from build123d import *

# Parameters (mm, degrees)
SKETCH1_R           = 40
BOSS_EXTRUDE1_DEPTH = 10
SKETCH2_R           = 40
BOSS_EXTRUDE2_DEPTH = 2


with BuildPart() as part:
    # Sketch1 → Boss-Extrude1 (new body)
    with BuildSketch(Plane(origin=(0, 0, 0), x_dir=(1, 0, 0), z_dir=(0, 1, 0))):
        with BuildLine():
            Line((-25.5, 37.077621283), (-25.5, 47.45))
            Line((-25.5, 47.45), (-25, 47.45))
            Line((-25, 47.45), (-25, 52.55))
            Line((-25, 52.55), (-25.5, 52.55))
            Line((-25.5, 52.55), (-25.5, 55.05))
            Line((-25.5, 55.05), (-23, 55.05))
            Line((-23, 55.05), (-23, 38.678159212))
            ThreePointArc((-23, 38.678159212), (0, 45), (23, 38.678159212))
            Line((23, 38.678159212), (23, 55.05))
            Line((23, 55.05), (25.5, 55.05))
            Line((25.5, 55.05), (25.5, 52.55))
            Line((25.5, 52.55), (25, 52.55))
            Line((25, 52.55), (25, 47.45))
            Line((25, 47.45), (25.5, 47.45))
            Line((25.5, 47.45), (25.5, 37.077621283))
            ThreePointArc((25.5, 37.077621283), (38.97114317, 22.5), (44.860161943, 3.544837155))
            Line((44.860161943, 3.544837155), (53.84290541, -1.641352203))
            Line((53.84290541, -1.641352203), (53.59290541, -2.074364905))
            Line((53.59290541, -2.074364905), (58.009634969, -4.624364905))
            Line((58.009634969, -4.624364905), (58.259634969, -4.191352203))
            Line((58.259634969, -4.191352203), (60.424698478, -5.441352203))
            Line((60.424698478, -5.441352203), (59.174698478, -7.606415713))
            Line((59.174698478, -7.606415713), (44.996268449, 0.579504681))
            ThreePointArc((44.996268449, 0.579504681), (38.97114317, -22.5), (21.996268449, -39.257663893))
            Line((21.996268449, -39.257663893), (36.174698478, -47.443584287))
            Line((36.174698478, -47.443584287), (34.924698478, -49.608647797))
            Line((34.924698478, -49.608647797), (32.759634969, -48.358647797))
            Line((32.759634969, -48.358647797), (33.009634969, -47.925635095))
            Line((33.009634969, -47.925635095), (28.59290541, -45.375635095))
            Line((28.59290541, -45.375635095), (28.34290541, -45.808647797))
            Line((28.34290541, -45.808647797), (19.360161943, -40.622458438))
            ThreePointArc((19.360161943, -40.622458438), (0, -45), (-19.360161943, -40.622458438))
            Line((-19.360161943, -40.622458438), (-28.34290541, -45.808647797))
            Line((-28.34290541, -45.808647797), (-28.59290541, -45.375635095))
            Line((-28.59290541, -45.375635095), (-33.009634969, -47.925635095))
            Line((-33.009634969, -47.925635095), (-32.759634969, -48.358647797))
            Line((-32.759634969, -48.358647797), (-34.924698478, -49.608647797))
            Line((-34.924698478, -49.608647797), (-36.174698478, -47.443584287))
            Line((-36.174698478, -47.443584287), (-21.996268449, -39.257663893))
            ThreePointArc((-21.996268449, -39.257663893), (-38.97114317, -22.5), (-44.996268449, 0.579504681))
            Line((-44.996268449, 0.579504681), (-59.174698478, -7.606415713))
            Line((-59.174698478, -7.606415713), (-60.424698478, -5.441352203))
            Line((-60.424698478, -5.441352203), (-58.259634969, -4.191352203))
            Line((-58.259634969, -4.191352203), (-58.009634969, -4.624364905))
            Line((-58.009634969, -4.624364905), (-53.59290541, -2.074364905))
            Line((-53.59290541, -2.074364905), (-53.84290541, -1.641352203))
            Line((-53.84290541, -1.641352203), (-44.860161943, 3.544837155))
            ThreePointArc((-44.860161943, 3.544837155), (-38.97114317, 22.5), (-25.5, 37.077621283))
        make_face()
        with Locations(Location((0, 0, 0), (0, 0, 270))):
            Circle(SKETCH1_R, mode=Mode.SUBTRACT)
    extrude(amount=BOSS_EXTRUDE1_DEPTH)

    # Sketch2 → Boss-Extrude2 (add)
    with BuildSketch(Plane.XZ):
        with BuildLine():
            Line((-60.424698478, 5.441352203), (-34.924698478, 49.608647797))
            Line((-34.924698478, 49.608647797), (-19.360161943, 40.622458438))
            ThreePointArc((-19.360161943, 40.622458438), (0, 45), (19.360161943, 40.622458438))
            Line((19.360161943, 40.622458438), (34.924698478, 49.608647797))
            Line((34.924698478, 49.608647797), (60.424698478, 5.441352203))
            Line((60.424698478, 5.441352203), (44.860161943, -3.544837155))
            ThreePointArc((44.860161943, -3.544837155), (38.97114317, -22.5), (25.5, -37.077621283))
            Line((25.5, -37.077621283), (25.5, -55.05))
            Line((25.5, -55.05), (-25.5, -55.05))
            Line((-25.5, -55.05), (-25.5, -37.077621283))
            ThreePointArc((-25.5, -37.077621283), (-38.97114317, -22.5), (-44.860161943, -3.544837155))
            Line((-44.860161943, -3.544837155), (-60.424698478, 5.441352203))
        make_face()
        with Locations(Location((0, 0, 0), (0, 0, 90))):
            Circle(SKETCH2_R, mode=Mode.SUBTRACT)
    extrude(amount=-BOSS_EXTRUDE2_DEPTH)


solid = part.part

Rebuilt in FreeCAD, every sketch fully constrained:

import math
import FreeCAD as App
import Part
import Sketcher
from FreeCAD import Vector
Q = App.Units.Quantity

doc = App.newDocument("Part")
params = doc.addObject("Spreadsheet::Sheet", "Params")
for row, (alias, value) in enumerate([
    ("sketch1_diameter", "80 mm"),
    ("sketch1_radius", "45 mm"),
    ("sketch1_width", "0.5 mm"),
    ("sketch1_width2", "2.5 mm"),
    ("sketch1_height", "5.1 mm"),
    ("pad1_length", "10 mm"),
    ("sketch2_diameter", "80 mm"),
    ("sketch2_radius", "45 mm"),
    ("sketch2_width", "51 mm"),
    ("sketch2_length", "51 mm"),
    ("pad2_length", "2 mm"),
], start=1):
    params.set(f"A{row}", alias)
    params.set(f"B{row}", "=" + value)
    params.setAlias(f"B{row}", alias)

body = doc.addObject("PartDesign::Body", "Body")

# Sketch on XZ plane
sketch1 = doc.addObject("Sketcher::SketchObject", "Sketch")
body.addObject(sketch1)
sketch1.AttachmentSupport = (doc.XZ_Plane, [""])
sketch1.MapMode = "FlatFace"
sketch1.addGeometry([
    Part.LineSegment(Vector(-25.5, -47.5, 0), Vector(-25.5, -37.1, 0)),  # 0
    Part.ArcOfCircle(Part.Circle(Vector(0, 0, 0), Vector(0, 0, 1), 45), math.radians(-175), math.radians(-125)),  # 1
    Part.LineSegment(Vector(-44.9, -3.5, 0), Vector(-53.8, 1.6, 0)),  # 2
    Part.LineSegment(Vector(-53.8, 1.6, 0), Vector(-53.6, 2.1, 0)),  # 3
    Part.LineSegment(Vector(-53.6, 2.1, 0), Vector(-58, 4.6, 0)),  # 4
    Part.LineSegment(Vector(-58, 4.6, 0), Vector(-58.3, 4.2, 0)),  # 5
    Part.LineSegment(Vector(-58.3, 4.2, 0), Vector(-60.4, 5.4, 0)),  # 6
    Part.LineSegment(Vector(-60.4, 5.4, 0), Vector(-59.2, 7.6, 0)),  # 7
    Part.LineSegment(Vector(-59.2, 7.6, 0), Vector(-45, -0.6, 0)),  # 8
    Part.ArcOfCircle(Part.Circle(Vector(0, 0, 0), Vector(0, 0, 1), 45), math.radians(119), math.radians(181)),  # 9
    Part.LineSegment(Vector(-22, 39.3, 0), Vector(-36.2, 47.4, 0)),  # 10
    Part.LineSegment(Vector(-36.2, 47.4, 0), Vector(-34.9, 49.6, 0)),  # 11
    Part.LineSegment(Vector(-34.9, 49.6, 0), Vector(-32.8, 48.4, 0)),  # 12
    Part.LineSegment(Vector(-32.8, 48.4, 0), Vector(-33, 47.9, 0)),  # 13
    Part.LineSegment(Vector(-33, 47.9, 0), Vector(-28.6, 45.4, 0)),  # 14
    Part.LineSegment(Vector(-28.6, 45.4, 0), Vector(-28.3, 45.8, 0)),  # 15
    Part.LineSegment(Vector(-28.3, 45.8, 0), Vector(-19.4, 40.6, 0)),  # 16
    Part.ArcOfCircle(Part.Circle(Vector(0, 0, 0), Vector(0, 0, 1), 45), math.radians(65), math.radians(115)),  # 17
    Part.LineSegment(Vector(19.4, 40.6, 0), Vector(28.3, 45.8, 0)),  # 18
    Part.LineSegment(Vector(28.3, 45.8, 0), Vector(28.6, 45.4, 0)),  # 19
    Part.LineSegment(Vector(28.6, 45.4, 0), Vector(33, 47.9, 0)),  # 20
    Part.LineSegment(Vector(33, 47.9, 0), Vector(32.8, 48.4, 0)),  # 21
    Part.LineSegment(Vector(32.8, 48.4, 0), Vector(34.9, 49.6, 0)),  # 22
    Part.LineSegment(Vector(34.9, 49.6, 0), Vector(36.2, 47.4, 0)),  # 23
    Part.LineSegment(Vector(36.2, 47.4, 0), Vector(22, 39.3, 0)),  # 24
    Part.ArcOfCircle(Part.Circle(Vector(0, 0, 0), Vector(0, 0, 1), 45), math.radians(-1), math.radians(61)),  # 25
    Part.LineSegment(Vector(45, -0.6, 0), Vector(59.2, 7.6, 0)),  # 26
    Part.LineSegment(Vector(59.2, 7.6, 0), Vector(60.4, 5.4, 0)),  # 27
    Part.LineSegment(Vector(60.4, 5.4, 0), Vector(58.3, 4.2, 0)),  # 28
    Part.LineSegment(Vector(58.3, 4.2, 0), Vector(58, 4.6, 0)),  # 29
    Part.LineSegment(Vector(58, 4.6, 0), Vector(53.6, 2.1, 0)),  # 30
    Part.LineSegment(Vector(53.6, 2.1, 0), Vector(53.8, 1.6, 0)),  # 31
    Part.LineSegment(Vector(53.8, 1.6, 0), Vector(44.9, -3.5, 0)),  # 32
    Part.ArcOfCircle(Part.Circle(Vector(0, 0, 0), Vector(0, 0, 1), 45), math.radians(-55), math.radians(-5)),  # 33
    Part.LineSegment(Vector(25.5, -37.1, 0), Vector(25.5, -47.5, 0)),  # 34
    Part.LineSegment(Vector(25.5, -47.5, 0), Vector(25, -47.5, 0)),  # 35
    Part.LineSegment(Vector(25, -47.5, 0), Vector(25, -52.5, 0)),  # 36
    Part.LineSegment(Vector(25, -52.5, 0), Vector(25.5, -52.5, 0)),  # 37
    Part.LineSegment(Vector(25.5, -52.5, 0), Vector(25.5, -55, 0)),  # 38
    Part.LineSegment(Vector(25.5, -55, 0), Vector(23, -55, 0)),  # 39
    Part.LineSegment(Vector(23, -55, 0), Vector(23, -38.7, 0)),  # 40
    Part.ArcOfCircle(Part.Circle(Vector(0, 0, 0), Vector(0, 0, 1), 45), math.radians(-121), math.radians(-59)),  # 41
    Part.LineSegment(Vector(-23, -38.7, 0), Vector(-23, -55, 0)),  # 42
    Part.LineSegment(Vector(-23, -55, 0), Vector(-25.5, -55, 0)),  # 43
    Part.LineSegment(Vector(-25.5, -55, 0), Vector(-25.5, -52.5, 0)),  # 44
    Part.LineSegment(Vector(-25.5, -52.5, 0), Vector(-25, -52.5, 0)),  # 45
    Part.LineSegment(Vector(-25, -52.5, 0), Vector(-25, -47.5, 0)),  # 46
    Part.LineSegment(Vector(-25, -47.5, 0), Vector(-25.5, -47.5, 0)),  # 47
    Part.Circle(Vector(0, 0, 0), Vector(0, 0, 1), 40),  # 48
], False)
sketch1.addConstraint([
    Sketcher.Constraint("Coincident", 0, 2, 1, 2),
    Sketcher.Constraint("Coincident", 1, 1, 2, 1),
    Sketcher.Constraint("Coincident", 2, 2, 3, 1),
    Sketcher.Constraint("Coincident", 3, 2, 4, 1),
    Sketcher.Constraint("Coincident", 4, 2, 5, 1),
    Sketcher.Constraint("Coincident", 5, 2, 6, 1),
    Sketcher.Constraint("Coincident", 6, 2, 7, 1),
    Sketcher.Constraint("Coincident", 7, 2, 8, 1),
    Sketcher.Constraint("Coincident", 8, 2, 9, 2),
    Sketcher.Constraint("Coincident", 9, 1, 10, 1),
    Sketcher.Constraint("Coincident", 10, 2, 11, 1),
    Sketcher.Constraint("Coincident", 11, 2, 12, 1),
    Sketcher.Constraint("Coincident", 12, 2, 13, 1),
    Sketcher.Constraint("Coincident", 13, 2, 14, 1),
    Sketcher.Constraint("Coincident", 14, 2, 15, 1),
    Sketcher.Constraint("Coincident", 15, 2, 16, 1),
    Sketcher.Constraint("Coincident", 16, 2, 17, 2),
    Sketcher.Constraint("Coincident", 17, 1, 18, 1),
    Sketcher.Constraint("Coincident", 18, 2, 19, 1),
    Sketcher.Constraint("Coincident", 19, 2, 20, 1),
    Sketcher.Constraint("Coincident", 20, 2, 21, 1),
    Sketcher.Constraint("Coincident", 21, 2, 22, 1),
    Sketcher.Constraint("Coincident", 22, 2, 23, 1),
    Sketcher.Constraint("Coincident", 23, 2, 24, 1),
    Sketcher.Constraint("Coincident", 24, 2, 25, 2),
    Sketcher.Constraint("Coincident", 25, 1, 26, 1),
    Sketcher.Constraint("Coincident", 26, 2, 27, 1),
    Sketcher.Constraint("Coincident", 27, 2, 28, 1),
    Sketcher.Constraint("Coincident", 28, 2, 29, 1),
    Sketcher.Constraint("Coincident", 29, 2, 30, 1),
    Sketcher.Constraint("Coincident", 30, 2, 31, 1),
    Sketcher.Constraint("Coincident", 31, 2, 32, 1),
    Sketcher.Constraint("Coincident", 32, 2, 33, 2),
    Sketcher.Constraint("Coincident", 33, 1, 34, 1),
    Sketcher.Constraint("Coincident", 34, 2, 35, 1),
    Sketcher.Constraint("Coincident", 35, 2, 36, 1),
    Sketcher.Constraint("Coincident", 36, 2, 37, 1),
    Sketcher.Constraint("Coincident", 37, 2, 38, 1),
    Sketcher.Constraint("Coincident", 38, 2, 39, 1),
    Sketcher.Constraint("Coincident", 39, 2, 40, 1),
    Sketcher.Constraint("Coincident", 40, 2, 41, 2),
    Sketcher.Constraint("Coincident", 41, 1, 42, 1),
    Sketcher.Constraint("Coincident", 42, 2, 43, 1),
    Sketcher.Constraint("Coincident", 43, 2, 44, 1),
    Sketcher.Constraint("Coincident", 44, 2, 45, 1),
    Sketcher.Constraint("Coincident", 45, 2, 46, 1),
    Sketcher.Constraint("Coincident", 46, 2, 47, 1),
    Sketcher.Constraint("Coincident", 47, 2, 0, 1),
    Sketcher.Constraint("Vertical", 0),
    Sketcher.Constraint("Vertical", 34),
    Sketcher.Constraint("Horizontal", 35),
    Sketcher.Constraint("Vertical", 36),
    Sketcher.Constraint("Horizontal", 37),
    Sketcher.Constraint("Vertical", 38),
    Sketcher.Constraint("Horizontal", 39),
    Sketcher.Constraint("Vertical", 40),
    Sketcher.Constraint("Vertical", 42),
    Sketcher.Constraint("Horizontal", 43),
    Sketcher.Constraint("Vertical", 44),
    Sketcher.Constraint("Horizontal", 45),
    Sketcher.Constraint("Vertical", 46),
    Sketcher.Constraint("Horizontal", 47),
    Sketcher.Constraint("Coincident", 1, 3, -1, 1),
    Sketcher.Constraint("Coincident", 9, 3, -1, 1),
    Sketcher.Constraint("Coincident", 17, 3, -1, 1),
    Sketcher.Constraint("Coincident", 25, 3, -1, 1),
    Sketcher.Constraint("Coincident", 33, 3, -1, 1),
    Sketcher.Constraint("Coincident", 41, 3, -1, 1),
    Sketcher.Constraint("Coincident", 48, 3, -1, 1),
    Sketcher.Constraint("Equal", 1, 9),
    Sketcher.Constraint("Equal", 9, 17),
    Sketcher.Constraint("Equal", 17, 25),
    Sketcher.Constraint("Equal", 25, 33),
    Sketcher.Constraint("Equal", 33, 41),
    Sketcher.Constraint("Symmetric", 15, 2, 18, 2, -2),
    Sketcher.Constraint("Symmetric", 14, 2, 19, 2, -2),
    Sketcher.Constraint("Symmetric", 13, 2, 20, 2, -2),
    Sketcher.Constraint("Symmetric", 12, 2, 21, 2, -2),
    Sketcher.Constraint("Symmetric", 11, 2, 22, 2, -2),
    Sketcher.Constraint("Symmetric", 10, 2, 23, 2, -2),
    Sketcher.Constraint("Symmetric", 7, 2, 26, 2, -2),
    Sketcher.Constraint("Symmetric", 6, 2, 27, 2, -2),
    Sketcher.Constraint("Symmetric", 5, 2, 28, 2, -2),
    Sketcher.Constraint("Symmetric", 4, 2, 29, 2, -2),
    Sketcher.Constraint("Symmetric", 3, 2, 30, 2, -2),
    Sketcher.Constraint("Symmetric", 2, 2, 31, 2, -2),
    Sketcher.Constraint("Symmetric", 39, 2, 42, 2, -2),
    Sketcher.Constraint("Symmetric", 37, 2, 44, 2, -2),
    Sketcher.Constraint("Symmetric", 35, 2, 46, 2, -2),
    Sketcher.Constraint("Perpendicular", 2, 3),
    Sketcher.Constraint("Perpendicular", 3, 4),
    Sketcher.Constraint("Perpendicular", 4, 5),
    Sketcher.Constraint("Perpendicular", 5, 6),
    Sketcher.Constraint("Perpendicular", 6, 7),
    Sketcher.Constraint("Perpendicular", 7, 8),
    Sketcher.Constraint("Parallel", 8, 10),
    Sketcher.Constraint("Perpendicular", 10, 11),
    Sketcher.Constraint("Perpendicular", 11, 12),
    Sketcher.Constraint("Perpendicular", 12, 13),
    Sketcher.Constraint("Perpendicular", 13, 14),
    Sketcher.Constraint("Perpendicular", 14, 15),
    Sketcher.Constraint("Perpendicular", 15, 16),
    Sketcher.Constraint("Perpendicular", 18, 19),
    Sketcher.Constraint("Perpendicular", 23, 24),
    Sketcher.Constraint("Parallel", 24, 26),
    Sketcher.Constraint("Perpendicular", 31, 32),
    Sketcher.Constraint("Horizontal", 0, 2, 33, 1),
    Sketcher.Constraint("Vertical", 34, 2, 37, 2),
    Sketcher.Constraint("Equal", 43, 38),
    Sketcher.Constraint("Equal", 3, 5),
    Sketcher.Constraint("Equal", 6, 7),
    Sketcher.Constraint("Equal", 8, 10),
    Sketcher.Constraint("Equal", 7, 11),
    Sketcher.Constraint("Equal", 11, 12),
    Sketcher.Constraint("Equal", 5, 13),
    Sketcher.Constraint("Equal", 4, 14),
    Sketcher.Constraint("Equal", 13, 15),
    Sketcher.Constraint("Equal", 2, 16),
    Sketcher.Constraint("Diameter", 48, Q("80 mm")),
    Sketcher.Constraint("Radius", 1, Q("45 mm")),
    Sketcher.Constraint("Angle", 2, Q("150 deg")),
    Sketcher.Constraint("DistanceX", 35, 2, 35, 1, Q("0.5 mm")),
    Sketcher.Constraint("DistanceX", 39, 2, 39, 1, Q("2.5 mm")),
    Sketcher.Constraint("DistanceY", 36, 2, 36, 1, Q("5.1 mm")),
    Sketcher.Constraint("DistanceX", -1, 1, 35, 2, Q("25 mm")),
    Sketcher.Constraint("DistanceX", 7, 2, 10, 2, Q("23 mm")),
    Sketcher.Constraint("Distance", 3, Q("0.5 mm")),
    Sketcher.Constraint("Distance", 4, Q("5.1 mm")),
    Sketcher.Constraint("Distance", 6, Q("2.5 mm")),
    Sketcher.Constraint("DistanceY", 34, 2, -1, 1, Q("47.45 mm")),
    Sketcher.Constraint("DistanceX", 6, 2, -1, 1, Q("60.424698 mm")),
])
sketch1.setExpression("Constraints[118]", "Params.sketch1_diameter")
sketch1.setExpression("Constraints[119]", "Params.sketch1_radius")
sketch1.setExpression("Constraints[121]", "Params.sketch1_width")
sketch1.setExpression("Constraints[122]", "Params.sketch1_width2")
sketch1.setExpression("Constraints[123]", "Params.sketch1_height")
pad1 = doc.addObject("PartDesign::Pad", "Pad")
body.addObject(pad1)
pad1.Profile = sketch1
pad1.setExpression("Length", "Params.pad1_length")
pad1.Reversed = True

# Sketch on XZ plane
sketch2 = doc.addObject("Sketcher::SketchObject", "Sketch001")
body.addObject(sketch2)
sketch2.AttachmentSupport = (doc.XZ_Plane, [""])
sketch2.MapMode = "FlatFace"
sketch2.addGeometry([
    Part.LineSegment(Vector(-35, 50, 0), Vector(-60, 5, 0)),  # 0
    Part.LineSegment(Vector(-60, 5, 0), Vector(-45, -4, 0)),  # 1
    Part.ArcOfCircle(Part.Circle(Vector(0, 0, 0), Vector(0, 0, 1), 45), math.radians(-175), math.radians(-125)),  # 2
    Part.LineSegment(Vector(-26, -37, 0), Vector(-26, -55, 0)),  # 3
    Part.LineSegment(Vector(-26, -55, 0), Vector(26, -55, 0)),  # 4
    Part.LineSegment(Vector(26, -55, 0), Vector(26, -37, 0)),  # 5
    Part.ArcOfCircle(Part.Circle(Vector(0, 0, 0), Vector(0, 0, 1), 45), math.radians(-55), math.radians(-5)),  # 6
    Part.LineSegment(Vector(45, -4, 0), Vector(60, 5, 0)),  # 7
    Part.LineSegment(Vector(60, 5, 0), Vector(35, 50, 0)),  # 8
    Part.LineSegment(Vector(35, 50, 0), Vector(19, 41, 0)),  # 9
    Part.ArcOfCircle(Part.Circle(Vector(0, 0, 0), Vector(0, 0, 1), 45), math.radians(65), math.radians(115)),  # 10
    Part.LineSegment(Vector(-19, 41, 0), Vector(-35, 50, 0)),  # 11
    Part.Circle(Vector(0, 0, 0), Vector(0, 0, 1), 40),  # 12
], False)
sketch2.addConstraint([
    Sketcher.Constraint("Coincident", 0, 2, 1, 1),
    Sketcher.Constraint("Coincident", 1, 2, 2, 1),
    Sketcher.Constraint("Coincident", 2, 2, 3, 1),
    Sketcher.Constraint("Coincident", 3, 2, 4, 1),
    Sketcher.Constraint("Coincident", 4, 2, 5, 1),
    Sketcher.Constraint("Coincident", 5, 2, 6, 1),
    Sketcher.Constraint("Coincident", 6, 2, 7, 1),
    Sketcher.Constraint("Coincident", 7, 2, 8, 1),
    Sketcher.Constraint("Coincident", 8, 2, 9, 1),
    Sketcher.Constraint("Coincident", 9, 2, 10, 1),
    Sketcher.Constraint("Coincident", 10, 2, 11, 1),
    Sketcher.Constraint("Coincident", 11, 2, 0, 1),
    Sketcher.Constraint("Vertical", 3),
    Sketcher.Constraint("Horizontal", 4),
    Sketcher.Constraint("Vertical", 5),
    Sketcher.Constraint("Coincident", 2, 3, -1, 1),
    Sketcher.Constraint("Coincident", 6, 3, -1, 1),
    Sketcher.Constraint("Coincident", 10, 3, -1, 1),
    Sketcher.Constraint("Coincident", 12, 3, -1, 1),
    Sketcher.Constraint("Equal", 2, 6),
    Sketcher.Constraint("Equal", 6, 10),
    Sketcher.Constraint("Symmetric", 0, 2, 7, 2, -2),
    Sketcher.Constraint("Symmetric", 8, 2, 11, 2, -2),
    Sketcher.Constraint("Perpendicular", 0, 1),
    Sketcher.Constraint("Perpendicular", 7, 8),
    Sketcher.Constraint("Perpendicular", 8, 9),
    Sketcher.Constraint("Parallel", 1, 11),
    Sketcher.Constraint("Horizontal", 2, 2, 5, 2),
    Sketcher.Constraint("Equal", 7, 9),
    Sketcher.Constraint("Diameter", 12, Q("80 mm")),
    Sketcher.Constraint("Radius", 2, Q("45 mm")),
    Sketcher.Constraint("DistanceX", 4, 1, 4, 2, Q("51 mm")),
    Sketcher.Constraint("Angle", 0, Q("-120 deg")),
    Sketcher.Constraint("Distance", 0, Q("51 mm")),
    Sketcher.Constraint("DistanceY", 3, 2, -1, 1, Q("55.05 mm")),
    Sketcher.Constraint("DistanceX", 0, 2, -1, 1, Q("60.424698 mm")),
])
sketch2.setExpression("Constraints[29]", "Params.sketch2_diameter")
sketch2.setExpression("Constraints[30]", "Params.sketch2_radius")
sketch2.setExpression("Constraints[31]", "Params.sketch2_width")
sketch2.setExpression("Constraints[33]", "Params.sketch2_length")
pad2 = doc.addObject("PartDesign::Pad", "Pad001")
body.addObject(pad2)
pad2.Profile = sketch2
pad2.setExpression("Length", "Params.pad2_length")
pad2.Reversed = True

doc.recompute()
